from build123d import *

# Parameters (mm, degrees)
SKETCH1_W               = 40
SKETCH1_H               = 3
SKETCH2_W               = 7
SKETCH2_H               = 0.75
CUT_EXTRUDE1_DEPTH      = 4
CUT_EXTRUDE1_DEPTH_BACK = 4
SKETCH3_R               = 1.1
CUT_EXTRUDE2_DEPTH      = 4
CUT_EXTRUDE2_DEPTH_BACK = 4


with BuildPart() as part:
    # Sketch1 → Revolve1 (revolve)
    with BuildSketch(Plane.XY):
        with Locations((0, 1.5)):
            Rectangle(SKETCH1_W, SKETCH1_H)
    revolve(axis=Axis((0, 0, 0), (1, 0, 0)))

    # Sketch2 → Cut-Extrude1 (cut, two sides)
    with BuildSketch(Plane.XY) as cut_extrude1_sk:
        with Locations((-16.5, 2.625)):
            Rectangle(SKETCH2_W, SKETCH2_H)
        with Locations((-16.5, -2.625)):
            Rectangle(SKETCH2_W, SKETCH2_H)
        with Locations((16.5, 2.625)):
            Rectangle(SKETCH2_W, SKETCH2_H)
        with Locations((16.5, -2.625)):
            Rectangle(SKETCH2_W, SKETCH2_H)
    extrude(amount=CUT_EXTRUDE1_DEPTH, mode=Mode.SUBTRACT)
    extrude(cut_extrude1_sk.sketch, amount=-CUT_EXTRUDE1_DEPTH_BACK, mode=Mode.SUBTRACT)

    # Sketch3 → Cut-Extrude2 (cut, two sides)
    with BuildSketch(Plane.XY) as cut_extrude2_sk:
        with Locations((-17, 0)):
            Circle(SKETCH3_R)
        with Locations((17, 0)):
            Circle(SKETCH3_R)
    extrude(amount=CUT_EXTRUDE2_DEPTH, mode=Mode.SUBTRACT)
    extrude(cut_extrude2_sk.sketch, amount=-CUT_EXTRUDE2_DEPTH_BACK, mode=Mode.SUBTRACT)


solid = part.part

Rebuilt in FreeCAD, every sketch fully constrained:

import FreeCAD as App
import Part
import Sketcher
from FreeCAD import Vector

doc = App.newDocument("Part")
body = doc.addObject("PartDesign::Body", "Body")

sketch1 = body.newObject("Sketcher::SketchObject", "Sketch")
sketch1.AttachmentSupport = (doc.getObject("XY_Plane"), [""])
sketch1.MapMode = "FlatFace"
sketch1.addGeometry(Part.LineSegment(Vector(-20, 3, 0), Vector(-20, 0, 0)), False)
sketch1.addGeometry(Part.LineSegment(Vector(-20, 0, 0), Vector(20, 0, 0)), False)
sketch1.addGeometry(Part.LineSegment(Vector(20, 0, 0), Vector(20, 3, 0)), False)
sketch1.addGeometry(Part.LineSegment(Vector(20, 3, 0), Vector(-20, 3, 0)), False)
sketch1.addConstraint(Sketcher.Constraint("Coincident", 0, 2, 1, 1))
sketch1.addConstraint(Sketcher.Constraint("Coincident", 1, 2, 2, 1))
sketch1.addConstraint(Sketcher.Constraint("Coincident", 2, 2, 3, 1))
sketch1.addConstraint(Sketcher.Constraint("Coincident", 3, 2, 0, 1))
sketch1.addConstraint(Sketcher.Constraint("Vertical", 0))
sketch1.addConstraint(Sketcher.Constraint("Horizontal", 1))
sketch1.addConstraint(Sketcher.Constraint("Vertical", 2))
sketch1.addConstraint(Sketcher.Constraint("Horizontal", 3))
sketch1.addConstraint(Sketcher.Constraint("Symmetric", 0, 2, 1, 2, -1, 1))
sketch1.addConstraint(Sketcher.Constraint("DistanceX", 1, 1, 1, 2, 40.0))
sketch1.addConstraint(Sketcher.Constraint("DistanceY", 0, 2, 0, 1, 3.0))
revolution = body.newObject("PartDesign::Revolution", "Revolution")
revolution.Profile = sketch1
revolution.ReferenceAxis = (sketch1, ["H_Axis"])
revolution.Angle = 360

sketch2 = body.newObject("Sketcher::SketchObject", "Sketch001")
sketch2.AttachmentSupport = (doc.getObject("XY_Plane"), [""])
sketch2.MapMode = "FlatFace"
sketch2.addGeometry(Part.LineSegment(Vector(-20, 3, 0), Vector(-20, 2.2, 0)), False)
sketch2.addGeometry(Part.LineSegment(Vector(-20, 2.2, 0), Vector(-13, 2.2, 0)), False)
sketch2.addGeometry(Part.LineSegment(Vector(-13, 2.2, 0), Vector(-13, 3, 0)), False)
sketch2.addGeometry(Part.LineSegment(Vector(-13, 3, 0), Vector(-20, 3, 0)), False)
sketch2.addGeometry(Part.LineSegment(Vector(-20, -2.2, 0), Vector(-20, -3, 0)), False)
sketch2.addGeometry(Part.LineSegment(Vector(-20, -3, 0), Vector(-13, -3, 0)), False)
sketch2.addGeometry(Part.LineSegment(Vector(-13, -3, 0), Vector(-13, -2.2, 0)), False)
sketch2.addGeometry(Part.LineSegment(Vector(-13, -2.2, 0), Vector(-20, -2.2, 0)), False)
sketch2.addGeometry(Part.LineSegment(Vector(13, 3, 0), Vector(13, 2.2, 0)), False)
sketch2.addGeometry(Part.LineSegment(Vector(13, 2.2, 0), Vector(20, 2.2, 0)), False)
sketch2.addGeometry(Part.LineSegment(Vector(20, 2.2, 0), Vector(20, 3, 0)), False)
sketch2.addGeometry(Part.LineSegment(Vector(20, 3, 0), Vector(13, 3, 0)), False)
sketch2.addGeometry(Part.LineSegment(Vector(13, -2.2, 0), Vector(13, -3, 0)), False)
sketch2.addGeometry(Part.LineSegment(Vector(13, -3, 0), Vector(20, -3, 0)), False)
sketch2.addGeometry(Part.LineSegment(Vector(20, -3, 0), Vector(20, -2.2, 0)), False)
sketch2.addGeometry(Part.LineSegment(Vector(20, -2.2, 0), Vector(13, -2.2, 0)), False)
sketch2.addConstraint(Sketcher.Constraint("Coincident", 0, 2, 1, 1))
sketch2.addConstraint(Sketcher.Constraint("Coincident", 1, 2, 2, 1))
sketch2.addConstraint(Sketcher.Constraint("Coincident", 2, 2, 3, 1))
sketch2.addConstraint(Sketcher.Constraint("Coincident", 3, 2, 0, 1))
sketch2.addConstraint(Sketcher.Constraint("Coincident", 4, 2, 5, 1))
sketch2.addConstraint(Sketcher.Constraint("Coincident", 5, 2, 6, 1))
sketch2.addConstraint(Sketcher.Constraint("Coincident", 6, 2, 7, 1))
sketch2.addConstraint(Sketcher.Constraint("Coincident", 7, 2, 4, 1))
sketch2.addConstraint(Sketcher.Constraint("Coincident", 8, 2, 9, 1))
sketch2.addConstraint(Sketcher.Constraint("Coincident", 9, 2, 10, 1))
sketch2.addConstraint(Sketcher.Constraint("Coincident", 10, 2, 11, 1))
sketch2.addConstraint(Sketcher.Constraint("Coincident", 11, 2, 8, 1))
sketch2.addConstraint(Sketcher.Constraint("Coincident", 12, 2, 13, 1))
sketch2.addConstraint(Sketcher.Constraint("Coincident", 13, 2, 14, 1))
sketch2.addConstraint(Sketcher.Constraint("Coincident", 14, 2, 15, 1))
sketch2.addConstraint(Sketcher.Constraint("Coincident", 15, 2, 12, 1))
sketch2.addConstraint(Sketcher.Constraint("Vertical", 0))
sketch2.addConstraint(Sketcher.Constraint("Horizontal", 1))
sketch2.addConstraint(Sketcher.Constraint("Vertical", 2))
sketch2.addConstraint(Sketcher.Constraint("Horizontal", 3))
sketch2.addConstraint(Sketcher.Constraint("Vertical", 4))
sketch2.addConstraint(Sketcher.Constraint("Horizontal", 5))
sketch2.addConstraint(Sketcher.Constraint("Vertical", 6))
sketch2.addConstraint(Sketcher.Constraint("Horizontal", 7))
sketch2.addConstraint(Sketcher.Constraint("Vertical", 8))
sketch2.addConstraint(Sketcher.Constraint("Horizontal", 9))
sketch2.addConstraint(Sketcher.Constraint("Vertical", 10))
sketch2.addConstraint(Sketcher.Constraint("Horizontal", 11))
sketch2.addConstraint(Sketcher.Constraint("Vertical", 12))
sketch2.addConstraint(Sketcher.Constraint("Horizontal", 13))
sketch2.addConstraint(Sketcher.Constraint("Vertical", 14))
sketch2.addConstraint(Sketcher.Constraint("Horizontal", 15))
sketch2.addConstraint(Sketcher.Constraint("Symmetric", 6, 2, 8, 2, -1, 1))
sketch2.addConstraint(Sketcher.Constraint("Symmetric", 4, 2, 10, 2, -1, 1))
sketch2.addConstraint(Sketcher.Constraint("Symmetric", 2, 2, 12, 2, -1, 1))
sketch2.addConstraint(Sketcher.Constraint("Symmetric", 0, 2, 14, 2, -1, 1))
sketch2.addConstraint(Sketcher.Constraint("Symmetric", 1, 2, 8, 2, -2))
sketch2.addConstraint(Sketcher.Constraint("Symmetric", 3, 2, 10, 2, -2))
sketch2.addConstraint(Sketcher.Constraint("DistanceX", 1, 1, 1, 2, 7.0))
sketch2.addConstraint(Sketcher.Constraint("DistanceX", 0, 2, -1, 1, 20.0))
sketch2.addConstraint(Sketcher.Constraint("DistanceY", -1, 1, 2, 2, 3.0))
sketch2.addConstraint(Sketcher.Constraint("DistanceY", 0, 2, 0, 1, 0.75))
pocket1 = body.newObject("PartDesign::Pocket", "Pocket")
pocket1.Profile = sketch2
pocket1.Type = "ThroughAll"
pocket1.Midplane = True

sketch3 = body.newObject("Sketcher::SketchObject", "Sketch002")
sketch3.AttachmentSupport = (doc.getObject("XY_Plane"), [""])
sketch3.MapMode = "FlatFace"
sketch3.addGeometry(Part.Circle(Vector(-17, 0, 0), Vector(0, 0, 1), 1.1), False)
sketch3.addGeometry(Part.Circle(Vector(17, 0, 0), Vector(0, 0, 1), 1.1), False)
sketch3.addConstraint(Sketcher.Constraint("Equal", 0, 1))
sketch3.addConstraint(Sketcher.Constraint("Symmetric", 0, 3, 1, 3, -1, 1))
sketch3.addConstraint(Sketcher.Constraint("PointOnObject", 0, 3, -1))
sketch3.addConstraint(Sketcher.Constraint("Diameter", 0, 2.2))
sketch3.addConstraint(Sketcher.Constraint("DistanceX", 0, 3, -1, 1, 17.0))
pocket2 = body.newObject("PartDesign::Pocket", "Pocket001")
pocket2.Profile = sketch3
pocket2.Type = "ThroughAll"
pocket2.Midplane = True

doc.recompute()
